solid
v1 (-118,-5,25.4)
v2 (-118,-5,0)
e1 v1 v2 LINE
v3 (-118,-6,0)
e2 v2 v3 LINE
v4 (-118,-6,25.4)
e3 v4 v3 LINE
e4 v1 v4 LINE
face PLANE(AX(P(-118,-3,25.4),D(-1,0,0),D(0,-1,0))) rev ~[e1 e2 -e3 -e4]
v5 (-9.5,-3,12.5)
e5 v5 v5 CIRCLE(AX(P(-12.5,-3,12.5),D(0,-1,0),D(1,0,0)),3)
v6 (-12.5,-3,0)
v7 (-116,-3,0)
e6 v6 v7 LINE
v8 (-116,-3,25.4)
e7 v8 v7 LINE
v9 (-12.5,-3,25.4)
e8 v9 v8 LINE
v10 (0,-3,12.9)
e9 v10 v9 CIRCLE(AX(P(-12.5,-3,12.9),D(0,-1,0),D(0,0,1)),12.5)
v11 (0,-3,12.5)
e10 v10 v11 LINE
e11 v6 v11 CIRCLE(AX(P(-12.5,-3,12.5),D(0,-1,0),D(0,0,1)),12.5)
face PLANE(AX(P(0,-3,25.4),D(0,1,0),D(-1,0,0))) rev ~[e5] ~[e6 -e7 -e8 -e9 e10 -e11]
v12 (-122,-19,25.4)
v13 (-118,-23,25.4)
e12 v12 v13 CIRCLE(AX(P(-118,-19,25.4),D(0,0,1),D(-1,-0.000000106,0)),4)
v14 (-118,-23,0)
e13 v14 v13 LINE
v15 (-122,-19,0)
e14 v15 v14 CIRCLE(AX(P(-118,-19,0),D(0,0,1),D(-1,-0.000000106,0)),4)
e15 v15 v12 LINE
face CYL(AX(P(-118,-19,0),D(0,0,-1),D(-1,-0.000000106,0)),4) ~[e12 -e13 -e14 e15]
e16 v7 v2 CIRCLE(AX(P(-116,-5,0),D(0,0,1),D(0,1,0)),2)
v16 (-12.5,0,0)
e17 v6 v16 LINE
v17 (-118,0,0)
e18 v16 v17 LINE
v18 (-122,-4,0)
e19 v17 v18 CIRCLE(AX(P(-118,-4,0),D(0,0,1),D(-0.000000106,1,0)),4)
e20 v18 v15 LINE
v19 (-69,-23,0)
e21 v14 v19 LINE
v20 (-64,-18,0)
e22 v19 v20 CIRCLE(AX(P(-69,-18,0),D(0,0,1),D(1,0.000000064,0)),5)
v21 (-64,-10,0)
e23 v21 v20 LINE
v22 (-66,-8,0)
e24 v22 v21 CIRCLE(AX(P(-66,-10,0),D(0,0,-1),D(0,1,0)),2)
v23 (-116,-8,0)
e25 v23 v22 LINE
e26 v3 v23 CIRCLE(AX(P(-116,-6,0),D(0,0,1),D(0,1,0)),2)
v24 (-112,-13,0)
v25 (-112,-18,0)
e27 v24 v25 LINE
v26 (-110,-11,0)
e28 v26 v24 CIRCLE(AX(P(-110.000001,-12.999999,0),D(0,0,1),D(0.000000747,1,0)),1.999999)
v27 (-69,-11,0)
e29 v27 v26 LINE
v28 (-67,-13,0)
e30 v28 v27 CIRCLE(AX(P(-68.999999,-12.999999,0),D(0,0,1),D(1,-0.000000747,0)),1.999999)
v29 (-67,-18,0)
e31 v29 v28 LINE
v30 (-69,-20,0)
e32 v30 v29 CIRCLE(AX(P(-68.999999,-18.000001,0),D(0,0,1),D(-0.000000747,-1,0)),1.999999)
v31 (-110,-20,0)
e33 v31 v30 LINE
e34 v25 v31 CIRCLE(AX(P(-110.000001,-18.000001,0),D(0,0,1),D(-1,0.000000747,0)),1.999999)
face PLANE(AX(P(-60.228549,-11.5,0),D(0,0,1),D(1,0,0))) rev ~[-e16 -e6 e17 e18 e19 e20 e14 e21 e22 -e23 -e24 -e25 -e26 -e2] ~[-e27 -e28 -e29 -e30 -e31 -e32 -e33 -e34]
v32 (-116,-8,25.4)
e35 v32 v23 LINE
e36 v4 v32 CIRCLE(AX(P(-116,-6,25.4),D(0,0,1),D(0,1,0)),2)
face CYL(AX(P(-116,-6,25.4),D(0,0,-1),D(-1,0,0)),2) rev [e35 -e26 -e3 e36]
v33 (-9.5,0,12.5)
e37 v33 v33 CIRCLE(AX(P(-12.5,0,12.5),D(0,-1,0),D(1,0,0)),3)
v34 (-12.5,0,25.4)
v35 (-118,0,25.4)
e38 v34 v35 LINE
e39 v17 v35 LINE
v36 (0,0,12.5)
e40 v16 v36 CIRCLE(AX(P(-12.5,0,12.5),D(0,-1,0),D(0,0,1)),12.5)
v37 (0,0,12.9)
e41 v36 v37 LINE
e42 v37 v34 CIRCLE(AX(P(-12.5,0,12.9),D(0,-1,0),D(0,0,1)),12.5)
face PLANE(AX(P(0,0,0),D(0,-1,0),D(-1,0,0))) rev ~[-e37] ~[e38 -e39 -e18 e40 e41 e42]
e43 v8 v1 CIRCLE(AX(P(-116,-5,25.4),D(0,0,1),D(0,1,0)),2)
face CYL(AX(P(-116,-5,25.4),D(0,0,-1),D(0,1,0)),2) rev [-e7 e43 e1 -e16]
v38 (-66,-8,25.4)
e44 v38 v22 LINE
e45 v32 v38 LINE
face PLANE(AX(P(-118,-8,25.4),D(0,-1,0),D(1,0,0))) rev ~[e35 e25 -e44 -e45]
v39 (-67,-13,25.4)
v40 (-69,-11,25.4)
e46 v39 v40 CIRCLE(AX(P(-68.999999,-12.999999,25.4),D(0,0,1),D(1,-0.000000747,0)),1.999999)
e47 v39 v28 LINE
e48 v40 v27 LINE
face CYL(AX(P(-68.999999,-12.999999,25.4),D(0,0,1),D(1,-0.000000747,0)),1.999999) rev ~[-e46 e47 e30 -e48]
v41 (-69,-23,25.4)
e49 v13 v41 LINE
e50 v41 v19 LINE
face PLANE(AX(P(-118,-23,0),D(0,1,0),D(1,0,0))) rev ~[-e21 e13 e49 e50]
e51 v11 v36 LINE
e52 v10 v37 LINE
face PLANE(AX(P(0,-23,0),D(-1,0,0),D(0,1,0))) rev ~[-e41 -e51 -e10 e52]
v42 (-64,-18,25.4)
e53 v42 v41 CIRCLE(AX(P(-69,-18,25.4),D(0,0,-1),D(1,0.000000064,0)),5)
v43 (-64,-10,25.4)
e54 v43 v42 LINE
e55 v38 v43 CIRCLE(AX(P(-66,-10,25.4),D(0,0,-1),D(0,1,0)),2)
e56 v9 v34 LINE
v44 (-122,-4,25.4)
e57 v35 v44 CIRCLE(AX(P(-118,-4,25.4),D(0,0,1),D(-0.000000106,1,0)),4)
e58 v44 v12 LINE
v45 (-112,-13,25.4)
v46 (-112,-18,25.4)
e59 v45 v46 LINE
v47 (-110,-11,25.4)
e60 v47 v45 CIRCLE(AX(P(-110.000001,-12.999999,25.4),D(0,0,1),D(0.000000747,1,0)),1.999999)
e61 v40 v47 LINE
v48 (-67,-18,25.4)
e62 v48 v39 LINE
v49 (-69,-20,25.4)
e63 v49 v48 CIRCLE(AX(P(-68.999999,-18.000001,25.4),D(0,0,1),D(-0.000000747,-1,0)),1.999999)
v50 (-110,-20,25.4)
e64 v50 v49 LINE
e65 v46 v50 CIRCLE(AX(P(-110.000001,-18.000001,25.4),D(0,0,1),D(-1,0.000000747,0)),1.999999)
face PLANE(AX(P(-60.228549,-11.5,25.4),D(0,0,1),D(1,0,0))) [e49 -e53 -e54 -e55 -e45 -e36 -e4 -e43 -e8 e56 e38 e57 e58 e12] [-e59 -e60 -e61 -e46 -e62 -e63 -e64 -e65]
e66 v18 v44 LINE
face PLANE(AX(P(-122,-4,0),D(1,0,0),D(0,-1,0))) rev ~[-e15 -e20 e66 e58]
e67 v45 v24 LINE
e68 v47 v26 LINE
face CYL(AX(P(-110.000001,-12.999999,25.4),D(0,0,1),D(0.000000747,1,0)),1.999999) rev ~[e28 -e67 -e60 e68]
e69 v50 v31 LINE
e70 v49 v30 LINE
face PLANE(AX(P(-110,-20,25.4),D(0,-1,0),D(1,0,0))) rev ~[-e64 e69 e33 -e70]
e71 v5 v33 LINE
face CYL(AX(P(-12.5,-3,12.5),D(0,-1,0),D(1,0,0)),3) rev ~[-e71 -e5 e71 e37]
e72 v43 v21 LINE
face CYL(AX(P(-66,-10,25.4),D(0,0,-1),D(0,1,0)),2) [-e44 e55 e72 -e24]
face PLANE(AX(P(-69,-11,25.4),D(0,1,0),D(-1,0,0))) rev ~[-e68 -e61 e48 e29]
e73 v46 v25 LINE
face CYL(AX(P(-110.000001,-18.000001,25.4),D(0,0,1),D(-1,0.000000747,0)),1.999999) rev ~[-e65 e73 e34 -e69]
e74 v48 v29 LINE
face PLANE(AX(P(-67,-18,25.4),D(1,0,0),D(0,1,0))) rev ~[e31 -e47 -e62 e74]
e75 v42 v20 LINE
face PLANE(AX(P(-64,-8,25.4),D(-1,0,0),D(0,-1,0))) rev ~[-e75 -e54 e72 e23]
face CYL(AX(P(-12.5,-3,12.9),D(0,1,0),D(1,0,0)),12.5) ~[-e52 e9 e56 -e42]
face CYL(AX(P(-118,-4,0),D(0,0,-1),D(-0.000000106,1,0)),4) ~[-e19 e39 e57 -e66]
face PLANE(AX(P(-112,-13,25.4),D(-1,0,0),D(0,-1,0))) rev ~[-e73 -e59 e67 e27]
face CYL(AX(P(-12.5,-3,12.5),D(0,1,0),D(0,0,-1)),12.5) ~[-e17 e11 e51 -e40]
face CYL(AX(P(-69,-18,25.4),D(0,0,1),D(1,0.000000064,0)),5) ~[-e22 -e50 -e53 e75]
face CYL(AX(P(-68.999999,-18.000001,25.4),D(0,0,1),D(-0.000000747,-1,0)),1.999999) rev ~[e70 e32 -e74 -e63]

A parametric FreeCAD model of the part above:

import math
import FreeCAD as App
import Part
import Sketcher
from FreeCAD import Vector
Q = App.Units.Quantity


def edges_at(feature, points):
    """Names of the edges that pass closest to the given points."""
    edges = feature.Shape.Edges
    near = lambda p: min(range(len(edges)), key=lambda i: edges[i].distToShape(Part.Vertex(*p))[0])
    return sorted({f"Edge{near(p) + 1}" for p in points})

doc = App.newDocument("Part")
params = doc.addObject("Spreadsheet::Sheet", "Params")
for row, (alias, value) in enumerate([
    ("sketch1_radius", "4 mm"),
    ("sketch1_width", "118 mm"),
    ("sketch1_height", "23 mm"),
    ("pad1_length", "25.4 mm"),
    ("sketch2_radius", "1.999999 mm"),
    ("sketch2_width", "41 mm"),
    ("sketch2_height", "5 mm"),
    ("sketch3_radius", "5 mm"),
    ("sketch3_width", "54 mm"),
    ("sketch3_width2", "69 mm"),
    ("sketch3_height", "10 mm"),
    ("sketch3_height2", "20 mm"),
    ("fillet_radius", "2 mm"),
    ("fillet2_radius", "12.5 mm"),
    ("sketch4_diameter", "6 mm"),
], start=1):
    params.set(f"A{row}", alias)
    params.set(f"B{row}", "=" + value)
    params.setAlias(f"B{row}", alias)

body = doc.addObject("PartDesign::Body", "Body")

# Sketch on XY plane
sketch1 = doc.addObject("Sketcher::SketchObject", "Sketch")
body.addObject(sketch1)
sketch1.AttachmentSupport = (doc.XY_Plane, [""])
sketch1.MapMode = "FlatFace"
sketch1.addGeometry(Part.LineSegment(Vector(0, -23, 0), Vector(0, 0, 0)), False)
sketch1.addGeometry(Part.LineSegment(Vector(0, 0, 0), Vector(-118, 0, 0)), False)
sketch1.addGeometry(Part.ArcOfCircle(Part.Circle(Vector(-118, -4, 0), Vector(0, 0, 1), 4), math.radians(90), math.radians(180)), False)
sketch1.addGeometry(Part.LineSegment(Vector(-122, -4, 0), Vector(-122, -19, 0)), False)
sketch1.addGeometry(Part.ArcOfCircle(Part.Circle(Vector(-118, -19, 0), Vector(0, 0, 1), 4), math.radians(-180), math.radians(-90)), False)
sketch1.addGeometry(Part.LineSegment(Vector(-118, -23, 0), Vector(0, -23, 0)), False)
sketch1.addConstraint(Sketcher.Constraint("Coincident", 0, 2, 1, 1))
sketch1.addConstraint(Sketcher.Constraint("Tangent", 1, 2, 2, 1))
sketch1.addConstraint(Sketcher.Constraint("Tangent", 2, 2, 3, 1))
sketch1.addConstraint(Sketcher.Constraint("Tangent", 3, 2, 4, 1))
sketch1.addConstraint(Sketcher.Constraint("Tangent", 4, 2, 5, 1))
sketch1.addConstraint(Sketcher.Constraint("Coincident", 5, 2, 0, 1))
sketch1.addConstraint(Sketcher.Constraint("Vertical", 0))
sketch1.addConstraint(Sketcher.Constraint("Horizontal", 1))
sketch1.addConstraint(Sketcher.Constraint("Vertical", 3))
sketch1.addConstraint(Sketcher.Constraint("Horizontal", 5))
sketch1.addConstraint(Sketcher.Constraint("Coincident", 0, 2, -1, 1))
sketch1.addConstraint(Sketcher.Constraint("Equal", 2, 4))
sketch1.addConstraint(Sketcher.Constraint("Radius", 2, Q("4 mm")))
sketch1.addConstraint(Sketcher.Constraint("DistanceX", 1, 2, 1, 1, Q("118 mm")))
sketch1.addConstraint(Sketcher.Constraint("DistanceY", 0, 1, 0, 2, Q("23 mm")))
sketch1.setExpression("Constraints[12]", "Params.sketch1_radius")
sketch1.setExpression("Constraints[13]", "Params.sketch1_width")
sketch1.setExpression("Constraints[14]", "Params.sketch1_height")
pad1 = doc.addObject("PartDesign::Pad", "Pad")
body.addObject(pad1)
pad1.Profile = sketch1
pad1.setExpression("Length", "Params.pad1_length")

# Sketch on XY plane
sketch2 = doc.addObject("Sketcher::SketchObject", "Sketch001")
body.addObject(sketch2)
sketch2.AttachmentSupport = (doc.XY_Plane, [""])
sketch2.MapMode = "FlatFace"
sketch2.AttachmentOffset = App.Placement(Vector(0, 0, 25.4), App.Rotation())
sketch2.addGeometry(Part.LineSegment(Vector(-69, -11, 0), Vector(-110, -11, 0)), False)
sketch2.addGeometry(Part.ArcOfCircle(Part.Circle(Vector(-110, -13, 0), Vector(0, 0, 1), 2), math.radians(90), math.radians(180)), False)
sketch2.addGeometry(Part.LineSegment(Vector(-112, -13, 0), Vector(-112, -18, 0)), False)
sketch2.addGeometry(Part.ArcOfCircle(Part.Circle(Vector(-110, -18, 0), Vector(0, 0, 1), 2), math.radians(180), math.radians(270)), False)
sketch2.addGeometry(Part.LineSegment(Vector(-110, -20, 0), Vector(-69, -20, 0)), False)
sketch2.addGeometry(Part.ArcOfCircle(Part.Circle(Vector(-69, -18, 0), Vector(0, 0, 1), 2), math.radians(-90), math.radians(0)), False)
sketch2.addGeometry(Part.LineSegment(Vector(-67, -18, 0), Vector(-67, -13, 0)), False)
sketch2.addGeometry(Part.ArcOfCircle(Part.Circle(Vector(-69, -13, 0), Vector(0, 0, 1), 2), math.radians(0), math.radians(90)), False)
sketch2.addConstraint(Sketcher.Constraint("Tangent", 0, 2, 1, 1))
sketch2.addConstraint(Sketcher.Constraint("Tangent", 1, 2, 2, 1))
sketch2.addConstraint(Sketcher.Constraint("Tangent", 2, 2, 3, 1))
sketch2.addConstraint(Sketcher.Constraint("Tangent", 3, 2, 4, 1))
sketch2.addConstraint(Sketcher.Constraint("Tangent", 4, 2, 5, 1))
sketch2.addConstraint(Sketcher.Constraint("Tangent", 5, 2, 6, 1))
sketch2.addConstraint(Sketcher.Constraint("Tangent", 6, 2, 7, 1))
sketch2.addConstraint(Sketcher.Constraint("Tangent", 7, 2, 0, 1))
sketch2.addConstraint(Sketcher.Constraint("Horizontal", 0))
sketch2.addConstraint(Sketcher.Constraint("Vertical", 2))
sketch2.addConstraint(Sketcher.Constraint("Horizontal", 4))
sketch2.addConstraint(Sketcher.Constraint("Vertical", 6))
sketch2.addConstraint(Sketcher.Constraint("Equal", 1, 3))
sketch2.addConstraint(Sketcher.Constraint("Equal", 3, 5))
sketch2.addConstraint(Sketcher.Constraint("Equal", 5, 7))
sketch2.addConstraint(Sketcher.Constraint("Radius", 1, Q("1.999999 mm")))
sketch2.addConstraint(Sketcher.Constraint("DistanceX", 0, 2, 0, 1, Q("41 mm")))
sketch2.addConstraint(Sketcher.Constraint("DistanceY", 2, 2, 2, 1, Q("5 mm")))
sketch2.addConstraint(Sketcher.Constraint("DistanceX", 1, 3, -1, 1, Q("110.000001 mm")))
sketch2.addConstraint(Sketcher.Constraint("DistanceY", 1, 3, -1, 1, Q("12.999999 mm")))
sketch2.setExpression("Constraints[15]", "Params.sketch2_radius")
sketch2.setExpression("Constraints[16]", "Params.sketch2_width")
sketch2.setExpression("Constraints[17]", "Params.sketch2_height")
pocket1 = doc.addObject("PartDesign::Pocket", "Pocket")
body.addObject(pocket1)
pocket1.Profile = sketch2
pocket1.Type = "ThroughAll"

# Sketch on XY plane
sketch3 = doc.addObject("Sketcher::SketchObject", "Sketch002")
body.addObject(sketch3)
sketch3.AttachmentSupport = (doc.XY_Plane, [""])
sketch3.MapMode = "FlatFace"
sketch3.AttachmentOffset = App.Placement(Vector(0, 0, 25.4), App.Rotation())
sketch3.addGeometry(Part.LineSegment(Vector(-118, -8, 0), Vector(-64, -8, 0)), False)
sketch3.addGeometry(Part.LineSegment(Vector(-64, -8, 0), Vector(-64, -18, 0)), False)
sketch3.addGeometry(Part.ArcOfCircle(Part.Circle(Vector(-69, -18, 0), Vector(0, 0, 1), 5), math.radians(-90), math.radians(0)), False)
sketch3.addGeometry(Part.LineSegment(Vector(-69, -23, 0), Vector(0, -23, 0)), False)
sketch3.addGeometry(Part.LineSegment(Vector(0, -23, 0), Vector(0, -3, 0)), False)
sketch3.addGeometry(Part.LineSegment(Vector(0, -3, 0), Vector(-118, -3, 0)), False)
sketch3.addGeometry(Part.LineSegment(Vector(-118, -3, 0), Vector(-118, -8, 0)), False)
sketch3.addConstraint(Sketcher.Constraint("Coincident", 0, 2, 1, 1))
sketch3.addConstraint(Sketcher.Constraint("Tangent", 1, 2, 2, 2))
sketch3.addConstraint(Sketcher.Constraint("Tangent", 2, 1, 3, 1))
sketch3.addConstraint(Sketcher.Constraint("Coincident", 3, 2, 4, 1))
sketch3.addConstraint(Sketcher.Constraint("Coincident", 4, 2, 5, 1))
sketch3.addConstraint(Sketcher.Constraint("Coincident", 5, 2, 6, 1))
sketch3.addConstraint(Sketcher.Constraint("Coincident", 6, 2, 0, 1))
sketch3.addConstraint(Sketcher.Constraint("Horizontal", 0))
sketch3.addConstraint(Sketcher.Constraint("Vertical", 1))
sketch3.addConstraint(Sketcher.Constraint("Horizontal", 3))
sketch3.addConstraint(Sketcher.Constraint("Vertical", 4))
sketch3.addConstraint(Sketcher.Constraint("Horizontal", 5))
sketch3.addConstraint(Sketcher.Constraint("Vertical", 6))
sketch3.addConstraint(Sketcher.Constraint("PointOnObject", 3, 2, -2))
sketch3.addConstraint(Sketcher.Constraint("Radius", 2, Q("5 mm")))
sketch3.addConstraint(Sketcher.Constraint("DistanceX", 0, 1, 0, 2, Q("54 mm")))
sketch3.addConstraint(Sketcher.Constraint("DistanceX", 3, 1, 3, 2, Q("69 mm")))
sketch3.addConstraint(Sketcher.Constraint("DistanceY", 1, 2, 1, 1, Q("10 mm")))
sketch3.addConstraint(Sketcher.Constraint("DistanceY", 4, 1, 4, 2, Q("20 mm")))
sketch3.addConstraint(Sketcher.Constraint("DistanceY", 2, 3, -1, 1, Q("18 mm")))
sketch3.setExpression("Constraints[14]", "Params.sketch3_radius")
sketch3.setExpression("Constraints[15]", "Params.sketch3_width")
sketch3.setExpression("Constraints[16]", "Params.sketch3_width2")
sketch3.setExpression("Constraints[17]", "Params.sketch3_height")
sketch3.setExpression("Constraints[18]", "Params.sketch3_height2")
pocket2 = doc.addObject("PartDesign::Pocket", "Pocket001")
body.addObject(pocket2)
pocket2.Profile = sketch3
pocket2.Type = "ThroughAll"
doc.recompute()

fillet = doc.addObject("PartDesign::Fillet", "Fillet")
body.addObject(fillet)
fillet.Base = (pocket2, edges_at(pocket2, [(-118, -3, 12.7), (-118, -8, 12.7), (-64, -8, 12.7)]))
fillet.setExpression("Radius", "Params.fillet_radius")
doc.recompute()

fillet2 = doc.addObject("PartDesign::Fillet", "Fillet001")
body.addObject(fillet2)
fillet2.Base = (fillet, edges_at(fillet, [(0, -1.5, 25.4), (0, -1.5, 0)]))
fillet2.setExpression("Radius", "Params.fillet2_radius")

# Sketch on XZ plane
sketch4 = doc.addObject("Sketcher::SketchObject", "Sketch003")
body.addObject(sketch4)
sketch4.AttachmentSupport = (doc.XZ_Plane, [""])
sketch4.MapMode = "FlatFace"
sketch4.AttachmentOffset = App.Placement(Vector(0, 0, 3), App.Rotation())
sketch4.addGeometry(Part.Circle(Vector(-12.5, 12.5, 0), Vector(0, 0, 1), 3), False)
sketch4.addConstraint(Sketcher.Constraint("Diameter", 0, Q("6 mm")))
sketch4.addConstraint(Sketcher.Constraint("DistanceX", 0, 3, -1, 1, Q("12.5 mm")))
sketch4.addConstraint(Sketcher.Constraint("DistanceY", -1, 1, 0, 3, Q("12.5 mm")))
sketch4.setExpression("Constraints[0]", "Params.sketch4_diameter")
pocket3 = doc.addObject("PartDesign::Pocket", "Pocket002")
body.addObject(pocket3)
pocket3.Profile = sketch4
pocket3.Type = "ThroughAll"

doc.recompute()
